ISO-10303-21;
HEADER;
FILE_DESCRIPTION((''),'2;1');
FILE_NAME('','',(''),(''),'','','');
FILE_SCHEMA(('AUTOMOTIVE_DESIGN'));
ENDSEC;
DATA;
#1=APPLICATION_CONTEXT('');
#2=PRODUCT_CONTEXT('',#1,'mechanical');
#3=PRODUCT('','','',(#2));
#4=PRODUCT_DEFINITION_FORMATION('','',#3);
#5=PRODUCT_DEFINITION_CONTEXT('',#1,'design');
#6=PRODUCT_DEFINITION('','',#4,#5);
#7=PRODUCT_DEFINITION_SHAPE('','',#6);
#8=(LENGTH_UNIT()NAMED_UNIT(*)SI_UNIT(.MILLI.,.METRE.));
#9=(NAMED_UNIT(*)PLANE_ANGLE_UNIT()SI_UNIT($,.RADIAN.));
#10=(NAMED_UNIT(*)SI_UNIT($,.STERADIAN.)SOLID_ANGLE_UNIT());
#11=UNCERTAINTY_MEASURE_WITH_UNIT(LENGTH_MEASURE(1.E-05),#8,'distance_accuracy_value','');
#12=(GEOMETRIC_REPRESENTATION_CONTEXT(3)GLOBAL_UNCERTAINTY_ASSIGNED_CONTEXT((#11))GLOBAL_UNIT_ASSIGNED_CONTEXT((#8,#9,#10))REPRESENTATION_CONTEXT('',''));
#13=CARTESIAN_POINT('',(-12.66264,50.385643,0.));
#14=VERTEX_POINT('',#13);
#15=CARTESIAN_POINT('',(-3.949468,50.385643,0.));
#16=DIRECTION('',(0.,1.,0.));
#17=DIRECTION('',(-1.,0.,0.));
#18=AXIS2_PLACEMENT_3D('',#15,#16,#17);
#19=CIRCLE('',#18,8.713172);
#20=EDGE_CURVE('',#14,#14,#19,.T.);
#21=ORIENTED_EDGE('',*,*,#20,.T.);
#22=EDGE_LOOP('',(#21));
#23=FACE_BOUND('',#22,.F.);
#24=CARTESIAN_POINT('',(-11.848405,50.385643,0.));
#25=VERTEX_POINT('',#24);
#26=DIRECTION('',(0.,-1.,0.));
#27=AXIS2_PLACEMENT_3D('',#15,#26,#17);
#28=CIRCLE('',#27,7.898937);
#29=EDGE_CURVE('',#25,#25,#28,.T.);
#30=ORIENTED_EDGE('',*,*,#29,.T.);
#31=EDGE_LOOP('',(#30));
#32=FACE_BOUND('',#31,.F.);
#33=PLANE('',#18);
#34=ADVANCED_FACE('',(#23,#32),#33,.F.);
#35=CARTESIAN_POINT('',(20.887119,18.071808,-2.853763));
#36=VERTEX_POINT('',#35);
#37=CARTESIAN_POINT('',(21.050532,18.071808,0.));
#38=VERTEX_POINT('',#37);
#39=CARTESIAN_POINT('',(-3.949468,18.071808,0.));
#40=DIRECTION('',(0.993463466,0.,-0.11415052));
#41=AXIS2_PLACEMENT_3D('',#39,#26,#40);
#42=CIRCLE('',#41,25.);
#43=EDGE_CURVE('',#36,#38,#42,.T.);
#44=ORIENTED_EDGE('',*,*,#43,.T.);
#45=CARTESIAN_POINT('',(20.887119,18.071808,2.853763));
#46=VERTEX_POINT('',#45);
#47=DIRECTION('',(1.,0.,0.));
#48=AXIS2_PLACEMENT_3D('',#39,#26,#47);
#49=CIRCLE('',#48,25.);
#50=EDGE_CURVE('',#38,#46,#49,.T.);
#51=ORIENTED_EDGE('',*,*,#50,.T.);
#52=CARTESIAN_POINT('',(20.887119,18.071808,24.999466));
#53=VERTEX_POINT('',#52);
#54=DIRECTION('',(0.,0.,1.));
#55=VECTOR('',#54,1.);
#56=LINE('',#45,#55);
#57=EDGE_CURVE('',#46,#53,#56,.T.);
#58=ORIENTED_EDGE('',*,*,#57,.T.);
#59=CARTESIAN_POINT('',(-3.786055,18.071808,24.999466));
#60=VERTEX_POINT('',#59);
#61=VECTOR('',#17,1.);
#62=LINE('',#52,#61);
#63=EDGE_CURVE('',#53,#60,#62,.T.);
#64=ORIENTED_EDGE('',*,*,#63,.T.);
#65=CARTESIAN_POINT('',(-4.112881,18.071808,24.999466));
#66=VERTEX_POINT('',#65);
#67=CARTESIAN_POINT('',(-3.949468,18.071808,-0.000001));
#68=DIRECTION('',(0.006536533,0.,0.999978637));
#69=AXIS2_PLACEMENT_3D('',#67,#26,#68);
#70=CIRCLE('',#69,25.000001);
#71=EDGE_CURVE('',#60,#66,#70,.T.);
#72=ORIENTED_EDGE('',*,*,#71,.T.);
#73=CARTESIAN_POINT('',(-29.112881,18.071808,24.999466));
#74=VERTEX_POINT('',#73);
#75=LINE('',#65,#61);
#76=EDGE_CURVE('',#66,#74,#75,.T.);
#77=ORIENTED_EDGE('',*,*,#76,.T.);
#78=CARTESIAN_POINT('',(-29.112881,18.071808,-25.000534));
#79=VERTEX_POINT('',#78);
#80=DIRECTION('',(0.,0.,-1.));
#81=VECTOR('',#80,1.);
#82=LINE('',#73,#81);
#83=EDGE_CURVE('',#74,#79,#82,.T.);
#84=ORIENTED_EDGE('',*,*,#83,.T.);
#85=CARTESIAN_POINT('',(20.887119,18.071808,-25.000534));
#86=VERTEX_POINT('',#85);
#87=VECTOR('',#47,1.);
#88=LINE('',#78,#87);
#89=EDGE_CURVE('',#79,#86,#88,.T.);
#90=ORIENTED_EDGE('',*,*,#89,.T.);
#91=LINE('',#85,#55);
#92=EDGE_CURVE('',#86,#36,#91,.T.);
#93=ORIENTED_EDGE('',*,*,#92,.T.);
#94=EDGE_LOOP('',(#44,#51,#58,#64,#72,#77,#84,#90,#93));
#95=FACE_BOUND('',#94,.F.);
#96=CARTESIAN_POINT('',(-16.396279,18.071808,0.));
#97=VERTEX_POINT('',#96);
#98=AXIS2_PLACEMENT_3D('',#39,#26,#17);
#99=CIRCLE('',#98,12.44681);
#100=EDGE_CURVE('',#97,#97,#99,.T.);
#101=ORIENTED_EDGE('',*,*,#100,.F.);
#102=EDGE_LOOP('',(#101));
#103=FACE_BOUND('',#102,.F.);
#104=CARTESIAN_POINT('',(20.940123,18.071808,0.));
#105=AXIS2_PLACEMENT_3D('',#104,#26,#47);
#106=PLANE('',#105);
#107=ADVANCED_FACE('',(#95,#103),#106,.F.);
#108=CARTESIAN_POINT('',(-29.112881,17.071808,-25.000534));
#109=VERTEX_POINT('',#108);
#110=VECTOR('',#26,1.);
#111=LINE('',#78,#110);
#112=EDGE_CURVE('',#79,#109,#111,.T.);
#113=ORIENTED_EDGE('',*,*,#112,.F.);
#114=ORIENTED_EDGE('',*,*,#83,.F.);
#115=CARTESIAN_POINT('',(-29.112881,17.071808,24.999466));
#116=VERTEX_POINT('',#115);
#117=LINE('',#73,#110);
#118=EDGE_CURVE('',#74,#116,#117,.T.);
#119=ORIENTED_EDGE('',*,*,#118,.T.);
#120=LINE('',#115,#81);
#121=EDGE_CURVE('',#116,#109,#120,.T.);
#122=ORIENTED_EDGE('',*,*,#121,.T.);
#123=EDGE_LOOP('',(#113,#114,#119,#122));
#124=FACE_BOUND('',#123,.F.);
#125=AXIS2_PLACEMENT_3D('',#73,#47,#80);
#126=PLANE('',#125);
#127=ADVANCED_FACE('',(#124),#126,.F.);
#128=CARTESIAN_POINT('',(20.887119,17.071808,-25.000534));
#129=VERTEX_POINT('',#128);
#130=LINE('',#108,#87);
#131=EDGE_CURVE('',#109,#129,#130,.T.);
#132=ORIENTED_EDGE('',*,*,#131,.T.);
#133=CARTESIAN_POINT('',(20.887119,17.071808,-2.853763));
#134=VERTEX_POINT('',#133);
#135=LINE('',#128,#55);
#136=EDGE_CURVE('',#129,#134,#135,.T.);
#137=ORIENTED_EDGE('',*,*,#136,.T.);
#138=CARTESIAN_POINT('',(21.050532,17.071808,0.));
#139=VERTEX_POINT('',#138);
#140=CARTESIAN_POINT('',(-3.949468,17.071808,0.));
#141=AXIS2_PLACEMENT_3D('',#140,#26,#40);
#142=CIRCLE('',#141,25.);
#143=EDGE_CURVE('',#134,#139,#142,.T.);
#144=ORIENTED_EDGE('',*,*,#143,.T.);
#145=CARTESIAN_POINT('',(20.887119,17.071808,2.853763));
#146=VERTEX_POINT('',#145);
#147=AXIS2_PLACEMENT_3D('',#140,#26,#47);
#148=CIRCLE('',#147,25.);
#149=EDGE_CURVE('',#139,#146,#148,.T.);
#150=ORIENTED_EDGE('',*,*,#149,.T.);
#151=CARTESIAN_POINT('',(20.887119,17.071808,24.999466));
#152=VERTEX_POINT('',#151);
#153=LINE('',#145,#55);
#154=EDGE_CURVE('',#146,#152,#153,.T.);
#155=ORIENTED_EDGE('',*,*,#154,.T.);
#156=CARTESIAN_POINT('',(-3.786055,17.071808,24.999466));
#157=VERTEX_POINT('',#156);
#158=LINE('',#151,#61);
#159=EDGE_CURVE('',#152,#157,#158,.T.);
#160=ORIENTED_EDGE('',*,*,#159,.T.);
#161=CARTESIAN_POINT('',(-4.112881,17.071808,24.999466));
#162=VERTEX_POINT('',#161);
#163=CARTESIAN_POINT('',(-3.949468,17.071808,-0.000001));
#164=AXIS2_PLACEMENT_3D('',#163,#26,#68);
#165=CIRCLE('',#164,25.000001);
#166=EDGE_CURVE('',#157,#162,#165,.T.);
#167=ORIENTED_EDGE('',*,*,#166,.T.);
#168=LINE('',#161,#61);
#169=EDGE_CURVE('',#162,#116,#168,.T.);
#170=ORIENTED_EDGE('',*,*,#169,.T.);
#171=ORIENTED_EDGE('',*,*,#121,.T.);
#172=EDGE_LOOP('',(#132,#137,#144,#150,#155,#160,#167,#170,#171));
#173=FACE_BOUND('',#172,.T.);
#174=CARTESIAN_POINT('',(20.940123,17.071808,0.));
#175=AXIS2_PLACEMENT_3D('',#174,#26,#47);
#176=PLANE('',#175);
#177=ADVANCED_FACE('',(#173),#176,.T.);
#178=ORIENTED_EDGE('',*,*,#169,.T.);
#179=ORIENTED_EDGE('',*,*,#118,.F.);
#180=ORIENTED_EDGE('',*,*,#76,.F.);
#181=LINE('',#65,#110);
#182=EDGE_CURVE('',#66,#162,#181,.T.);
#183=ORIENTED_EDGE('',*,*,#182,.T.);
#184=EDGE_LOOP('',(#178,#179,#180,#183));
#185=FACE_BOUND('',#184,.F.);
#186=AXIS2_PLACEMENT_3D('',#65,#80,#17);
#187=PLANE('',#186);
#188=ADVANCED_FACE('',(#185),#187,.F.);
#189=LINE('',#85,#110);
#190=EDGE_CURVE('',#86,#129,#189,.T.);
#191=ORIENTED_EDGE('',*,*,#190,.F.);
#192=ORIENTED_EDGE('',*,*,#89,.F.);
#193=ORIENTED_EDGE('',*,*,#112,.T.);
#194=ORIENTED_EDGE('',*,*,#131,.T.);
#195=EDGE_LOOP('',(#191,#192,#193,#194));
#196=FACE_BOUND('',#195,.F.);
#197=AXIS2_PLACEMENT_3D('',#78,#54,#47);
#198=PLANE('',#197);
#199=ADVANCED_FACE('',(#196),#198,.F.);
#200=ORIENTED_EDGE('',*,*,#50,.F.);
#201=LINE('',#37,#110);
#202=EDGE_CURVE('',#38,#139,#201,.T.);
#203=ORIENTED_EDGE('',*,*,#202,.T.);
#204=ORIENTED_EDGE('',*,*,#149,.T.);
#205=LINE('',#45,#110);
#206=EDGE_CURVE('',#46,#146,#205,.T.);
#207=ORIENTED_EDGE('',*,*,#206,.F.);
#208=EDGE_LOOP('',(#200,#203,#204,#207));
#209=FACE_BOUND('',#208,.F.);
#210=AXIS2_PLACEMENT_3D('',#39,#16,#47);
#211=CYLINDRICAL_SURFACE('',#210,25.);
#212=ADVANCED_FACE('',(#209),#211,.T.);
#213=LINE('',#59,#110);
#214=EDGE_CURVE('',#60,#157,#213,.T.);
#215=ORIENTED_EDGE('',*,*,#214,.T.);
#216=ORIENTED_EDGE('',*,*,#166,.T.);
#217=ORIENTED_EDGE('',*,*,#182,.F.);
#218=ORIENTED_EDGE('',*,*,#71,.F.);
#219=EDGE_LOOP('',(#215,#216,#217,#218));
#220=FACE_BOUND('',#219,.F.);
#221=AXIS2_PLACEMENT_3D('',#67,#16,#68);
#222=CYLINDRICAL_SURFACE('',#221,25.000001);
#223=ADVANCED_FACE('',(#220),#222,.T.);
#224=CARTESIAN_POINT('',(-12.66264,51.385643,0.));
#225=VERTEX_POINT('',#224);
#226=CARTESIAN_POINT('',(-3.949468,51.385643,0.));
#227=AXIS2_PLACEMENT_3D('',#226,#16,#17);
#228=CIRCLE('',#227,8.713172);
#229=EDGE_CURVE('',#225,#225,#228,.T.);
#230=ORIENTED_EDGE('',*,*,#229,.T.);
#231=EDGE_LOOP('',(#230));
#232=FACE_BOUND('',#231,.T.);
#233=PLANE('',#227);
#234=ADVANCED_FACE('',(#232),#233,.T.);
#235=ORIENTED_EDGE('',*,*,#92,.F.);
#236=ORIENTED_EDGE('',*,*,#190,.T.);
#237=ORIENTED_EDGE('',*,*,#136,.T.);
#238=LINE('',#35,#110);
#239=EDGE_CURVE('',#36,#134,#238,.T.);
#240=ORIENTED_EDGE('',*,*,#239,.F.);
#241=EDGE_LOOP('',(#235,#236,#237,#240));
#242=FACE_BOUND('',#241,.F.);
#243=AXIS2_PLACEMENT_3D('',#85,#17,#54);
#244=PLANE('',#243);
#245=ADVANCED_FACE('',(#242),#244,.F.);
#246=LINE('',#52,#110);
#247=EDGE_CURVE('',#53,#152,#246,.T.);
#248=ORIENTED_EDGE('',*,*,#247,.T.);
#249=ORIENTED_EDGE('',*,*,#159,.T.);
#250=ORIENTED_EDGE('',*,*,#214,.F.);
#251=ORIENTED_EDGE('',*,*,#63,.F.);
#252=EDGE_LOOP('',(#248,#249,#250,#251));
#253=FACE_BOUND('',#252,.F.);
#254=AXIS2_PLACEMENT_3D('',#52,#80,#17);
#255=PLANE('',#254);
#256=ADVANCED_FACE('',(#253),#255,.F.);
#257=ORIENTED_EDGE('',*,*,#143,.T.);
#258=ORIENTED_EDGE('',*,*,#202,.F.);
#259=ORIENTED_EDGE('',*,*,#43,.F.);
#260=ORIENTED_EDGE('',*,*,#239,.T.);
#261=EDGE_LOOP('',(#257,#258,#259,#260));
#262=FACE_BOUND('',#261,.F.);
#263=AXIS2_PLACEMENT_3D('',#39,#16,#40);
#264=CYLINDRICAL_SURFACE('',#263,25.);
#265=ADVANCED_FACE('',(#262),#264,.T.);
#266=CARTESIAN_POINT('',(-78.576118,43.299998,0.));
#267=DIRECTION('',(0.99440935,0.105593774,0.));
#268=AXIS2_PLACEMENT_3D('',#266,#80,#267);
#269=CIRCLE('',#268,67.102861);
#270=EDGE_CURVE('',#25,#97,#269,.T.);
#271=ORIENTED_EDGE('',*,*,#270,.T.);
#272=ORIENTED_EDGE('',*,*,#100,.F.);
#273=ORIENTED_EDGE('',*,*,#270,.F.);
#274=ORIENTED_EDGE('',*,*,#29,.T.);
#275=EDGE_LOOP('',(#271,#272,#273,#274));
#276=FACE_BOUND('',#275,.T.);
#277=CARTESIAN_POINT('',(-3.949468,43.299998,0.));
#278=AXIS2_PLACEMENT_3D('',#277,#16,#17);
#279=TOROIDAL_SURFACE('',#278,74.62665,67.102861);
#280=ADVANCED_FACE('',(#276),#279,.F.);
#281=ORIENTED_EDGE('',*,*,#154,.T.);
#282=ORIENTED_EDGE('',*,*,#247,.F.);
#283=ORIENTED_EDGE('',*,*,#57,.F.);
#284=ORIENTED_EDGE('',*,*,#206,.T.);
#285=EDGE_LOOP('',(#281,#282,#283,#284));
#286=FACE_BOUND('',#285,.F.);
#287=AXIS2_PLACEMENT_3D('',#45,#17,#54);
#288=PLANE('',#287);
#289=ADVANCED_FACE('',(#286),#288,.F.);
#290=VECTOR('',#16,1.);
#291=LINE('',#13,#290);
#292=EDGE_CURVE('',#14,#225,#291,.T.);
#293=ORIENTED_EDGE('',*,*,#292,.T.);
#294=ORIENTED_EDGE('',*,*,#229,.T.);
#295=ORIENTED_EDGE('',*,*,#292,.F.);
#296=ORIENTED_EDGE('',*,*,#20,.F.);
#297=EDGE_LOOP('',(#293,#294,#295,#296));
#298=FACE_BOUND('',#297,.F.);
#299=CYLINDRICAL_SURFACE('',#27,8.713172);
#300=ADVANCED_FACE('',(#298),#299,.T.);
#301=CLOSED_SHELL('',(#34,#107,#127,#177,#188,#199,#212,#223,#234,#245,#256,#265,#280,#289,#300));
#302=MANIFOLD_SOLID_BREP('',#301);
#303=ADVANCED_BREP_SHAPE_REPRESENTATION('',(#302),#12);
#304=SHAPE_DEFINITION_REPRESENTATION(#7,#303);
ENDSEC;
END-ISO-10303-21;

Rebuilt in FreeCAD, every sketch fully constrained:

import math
import FreeCAD as App
import Part
import Sketcher
from FreeCAD import Vector
Q = App.Units.Quantity

doc = App.newDocument("Part")
body = doc.addObject("PartDesign::Body", "Body")

# Sketch on XY plane
sketch1 = doc.addObject("Sketcher::SketchObject", "Sketch")
body.addObject(sketch1)
sketch1.AttachmentSupport = (doc.XY_Plane, [""])
sketch1.MapMode = "FlatFace"
sketch1.addGeometry(Part.LineSegment(Vector(-4, 50, 0), Vector(-12, 50, 0)), False)
sketch1.addGeometry(Part.ArcOfCircle(Part.Circle(Vector(-79, 43, 0), Vector(0, 0, 1), 67), math.radians(-22), math.radians(6)), False)
sketch1.addGeometry(Part.LineSegment(Vector(-16, 18, 0), Vector(-4, 18, 0)), False)
sketch1.addGeometry(Part.LineSegment(Vector(-4, 18, 0), Vector(-4, 50, 0)), False)
sketch1.addGeometry(Part.LineSegment(Vector(-4, 50, 0), Vector(-4, 18, 0)), True)  # axis
sketch1.addConstraint(Sketcher.Constraint("Coincident", 0, 2, 1, 2))
sketch1.addConstraint(Sketcher.Constraint("Coincident", 1, 1, 2, 1))
sketch1.addConstraint(Sketcher.Constraint("Coincident", 2, 2, 3, 1))
sketch1.addConstraint(Sketcher.Constraint("Coincident", 3, 2, 0, 1))
sketch1.addConstraint(Sketcher.Constraint("Horizontal", 0))
sketch1.addConstraint(Sketcher.Constraint("Horizontal", 2))
sketch1.addConstraint(Sketcher.Constraint("Vertical", 3))
sketch1.addConstraint(Sketcher.Constraint("Vertical", 4))
sketch1.addConstraint(Sketcher.Constraint("Coincident", 4, 1, 3, 2))
sketch1.addConstraint(Sketcher.Constraint("Horizontal", 1, 1, 4, 2))
sketch1.addConstraint(Sketcher.Constraint("DistanceY", -1, 1, 1, 3, Q("43.299998 mm")))
sketch1.addConstraint(Sketcher.Constraint("Radius", 1, Q("67.102861 mm")))
sketch1.addConstraint(Sketcher.Constraint("DistanceX", 2, 1, 2, 2, Q("12.44681 mm")))
sketch1.addConstraint(Sketcher.Constraint("DistanceX", 0, 2, 0, 1, Q("7.898937 mm")))
sketch1.addConstraint(Sketcher.Constraint("DistanceY", 3, 1, 3, 2, Q("32.313835 mm")))
sketch1.addConstraint(Sketcher.Constraint("DistanceX", 1, 1, -1, 1, Q("16.396279 mm")))
revolution = doc.addObject("PartDesign::Revolution", "Revolution")
body.addObject(revolution)
revolution.Profile = sketch1
revolution.ReferenceAxis = (sketch1, ["Axis0"])
revolution.Angle = 360

# Sketch on XZ plane
sketch2 = doc.addObject("Sketcher::SketchObject", "Sketch001")
body.addObject(sketch2)
sketch2.AttachmentSupport = (doc.XZ_Plane, [""])
sketch2.MapMode = "FlatFace"
sketch2.AttachmentOffset = App.Placement(Vector(0, 0, -18.071808), App.Rotation())
sketch2.addGeometry(Part.ArcOfCircle(Part.Circle(Vector(-3.95, 0, 0), Vector(0, 0, 1), 25), math.radians(89.63), math.radians(90.37)), False)
sketch2.addGeometry(Part.LineSegment(Vector(-4.11, 25, 0), Vector(-29.11, 25, 0)), False)
sketch2.addGeometry(Part.LineSegment(Vector(-29.11, 25, 0), Vector(-29.11, -25, 0)), False)
sketch2.addGeometry(Part.LineSegment(Vector(-29.11, -25, 0), Vector(20.89, -25, 0)), False)
sketch2.addGeometry(Part.LineSegment(Vector(20.89, -25, 0), Vector(20.89, -2.85, 0)), False)
sketch2.addGeometry(Part.ArcOfCircle(Part.Circle(Vector(-3.95, 0, 0), Vector(0, 0, 1), 25), math.radians(-6.55), math.radians(0)), False)
sketch2.addGeometry(Part.ArcOfCircle(Part.Circle(Vector(-3.95, 0, 0), Vector(0, 0, 1), 25), math.radians(0), math.radians(6.55)), False)
sketch2.addGeometry(Part.LineSegment(Vector(20.89, 2.85, 0), Vector(20.89, 25, 0)), False)
sketch2.addGeometry(Part.LineSegment(Vector(20.89, 25, 0), Vector(-3.79, 25, 0)), False)
sketch2.addConstraint(Sketcher.Constraint("Coincident", 0, 2, 1, 1))
sketch2.addConstraint(Sketcher.Constraint("Coincident", 1, 2, 2, 1))
sketch2.addConstraint(Sketcher.Constraint("Coincident", 2, 2, 3, 1))
sketch2.addConstraint(Sketcher.Constraint("Coincident", 3, 2, 4, 1))
sketch2.addConstraint(Sketcher.Constraint("Coincident", 4, 2, 5, 1))
sketch2.addConstraint(Sketcher.Constraint("Tangent", 5, 2, 6, 1))
sketch2.addConstraint(Sketcher.Constraint("Coincident", 6, 2, 7, 1))
sketch2.addConstraint(Sketcher.Constraint("Coincident", 7, 2, 8, 1))
sketch2.addConstraint(Sketcher.Constraint("Coincident", 8, 2, 0, 1))
sketch2.addConstraint(Sketcher.Constraint("Horizontal", 1))
sketch2.addConstraint(Sketcher.Constraint("Vertical", 2))
sketch2.addConstraint(Sketcher.Constraint("Horizontal", 3))
sketch2.addConstraint(Sketcher.Constraint("Vertical", 4))
sketch2.addConstraint(Sketcher.Constraint("Vertical", 7))
sketch2.addConstraint(Sketcher.Constraint("Horizontal", 8))
sketch2.addConstraint(Sketcher.Constraint("Coincident", 5, 3, 0, 3))
sketch2.addConstraint(Sketcher.Constraint("Equal", 0, 5))
sketch2.addConstraint(Sketcher.Constraint("Equal", 5, 6))
sketch2.addConstraint(Sketcher.Constraint("Symmetric", 4, 2, 6, 2, -1))
sketch2.addConstraint(Sketcher.Constraint("PointOnObject", 5, 2, -1))
sketch2.addConstraint(Sketcher.Constraint("Horizontal", 1, 2, 7, 2))
sketch2.addConstraint(Sketcher.Constraint("Equal", 3, 2))
sketch2.addConstraint(Sketcher.Constraint("Radius", 0, Q("25.000001 mm")))
sketch2.addConstraint(Sketcher.Constraint("DistanceX", 1, 2, 1, 1, Q("25 mm")))
sketch2.addConstraint(Sketcher.Constraint("DistanceX", 3, 1, 3, 2, Q("50 mm")))
sketch2.addConstraint(Sketcher.Constraint("DistanceY", 4, 1, 4, 2, Q("22.146771 mm")))
sketch2.addConstraint(Sketcher.Constraint("DistanceX", 0, 3, -1, 1, Q("3.949468 mm")))
pad1 = doc.addObject("PartDesign::Pad", "Pad")
body.addObject(pad1)
pad1.Profile = sketch2
pad1.Length = 1

# Sketch on XZ plane
sketch3 = doc.addObject("Sketcher::SketchObject", "Sketch002")
body.addObject(sketch3)
sketch3.AttachmentSupport = (doc.XZ_Plane, [""])
sketch3.MapMode = "FlatFace"
sketch3.AttachmentOffset = App.Placement(Vector(0, 0, -50.385643), App.Rotation())
sketch3.addGeometry(Part.Circle(Vector(-4, 0, 0), Vector(0, 0, 1), 9), False)
sketch3.addConstraint(Sketcher.Constraint("PointOnObject", 0, 3, -1))
sketch3.addConstraint(Sketcher.Constraint("Diameter", 0, Q("17.426345 mm")))
sketch3.addConstraint(Sketcher.Constraint("DistanceX", 0, 3, -1, 1, Q("3.949468 mm")))
pad2 = doc.addObject("PartDesign::Pad", "Pad001")
body.addObject(pad2)
pad2.Profile = sketch3
pad2.Length = 1
pad2.Reversed = True

doc.recompute()
